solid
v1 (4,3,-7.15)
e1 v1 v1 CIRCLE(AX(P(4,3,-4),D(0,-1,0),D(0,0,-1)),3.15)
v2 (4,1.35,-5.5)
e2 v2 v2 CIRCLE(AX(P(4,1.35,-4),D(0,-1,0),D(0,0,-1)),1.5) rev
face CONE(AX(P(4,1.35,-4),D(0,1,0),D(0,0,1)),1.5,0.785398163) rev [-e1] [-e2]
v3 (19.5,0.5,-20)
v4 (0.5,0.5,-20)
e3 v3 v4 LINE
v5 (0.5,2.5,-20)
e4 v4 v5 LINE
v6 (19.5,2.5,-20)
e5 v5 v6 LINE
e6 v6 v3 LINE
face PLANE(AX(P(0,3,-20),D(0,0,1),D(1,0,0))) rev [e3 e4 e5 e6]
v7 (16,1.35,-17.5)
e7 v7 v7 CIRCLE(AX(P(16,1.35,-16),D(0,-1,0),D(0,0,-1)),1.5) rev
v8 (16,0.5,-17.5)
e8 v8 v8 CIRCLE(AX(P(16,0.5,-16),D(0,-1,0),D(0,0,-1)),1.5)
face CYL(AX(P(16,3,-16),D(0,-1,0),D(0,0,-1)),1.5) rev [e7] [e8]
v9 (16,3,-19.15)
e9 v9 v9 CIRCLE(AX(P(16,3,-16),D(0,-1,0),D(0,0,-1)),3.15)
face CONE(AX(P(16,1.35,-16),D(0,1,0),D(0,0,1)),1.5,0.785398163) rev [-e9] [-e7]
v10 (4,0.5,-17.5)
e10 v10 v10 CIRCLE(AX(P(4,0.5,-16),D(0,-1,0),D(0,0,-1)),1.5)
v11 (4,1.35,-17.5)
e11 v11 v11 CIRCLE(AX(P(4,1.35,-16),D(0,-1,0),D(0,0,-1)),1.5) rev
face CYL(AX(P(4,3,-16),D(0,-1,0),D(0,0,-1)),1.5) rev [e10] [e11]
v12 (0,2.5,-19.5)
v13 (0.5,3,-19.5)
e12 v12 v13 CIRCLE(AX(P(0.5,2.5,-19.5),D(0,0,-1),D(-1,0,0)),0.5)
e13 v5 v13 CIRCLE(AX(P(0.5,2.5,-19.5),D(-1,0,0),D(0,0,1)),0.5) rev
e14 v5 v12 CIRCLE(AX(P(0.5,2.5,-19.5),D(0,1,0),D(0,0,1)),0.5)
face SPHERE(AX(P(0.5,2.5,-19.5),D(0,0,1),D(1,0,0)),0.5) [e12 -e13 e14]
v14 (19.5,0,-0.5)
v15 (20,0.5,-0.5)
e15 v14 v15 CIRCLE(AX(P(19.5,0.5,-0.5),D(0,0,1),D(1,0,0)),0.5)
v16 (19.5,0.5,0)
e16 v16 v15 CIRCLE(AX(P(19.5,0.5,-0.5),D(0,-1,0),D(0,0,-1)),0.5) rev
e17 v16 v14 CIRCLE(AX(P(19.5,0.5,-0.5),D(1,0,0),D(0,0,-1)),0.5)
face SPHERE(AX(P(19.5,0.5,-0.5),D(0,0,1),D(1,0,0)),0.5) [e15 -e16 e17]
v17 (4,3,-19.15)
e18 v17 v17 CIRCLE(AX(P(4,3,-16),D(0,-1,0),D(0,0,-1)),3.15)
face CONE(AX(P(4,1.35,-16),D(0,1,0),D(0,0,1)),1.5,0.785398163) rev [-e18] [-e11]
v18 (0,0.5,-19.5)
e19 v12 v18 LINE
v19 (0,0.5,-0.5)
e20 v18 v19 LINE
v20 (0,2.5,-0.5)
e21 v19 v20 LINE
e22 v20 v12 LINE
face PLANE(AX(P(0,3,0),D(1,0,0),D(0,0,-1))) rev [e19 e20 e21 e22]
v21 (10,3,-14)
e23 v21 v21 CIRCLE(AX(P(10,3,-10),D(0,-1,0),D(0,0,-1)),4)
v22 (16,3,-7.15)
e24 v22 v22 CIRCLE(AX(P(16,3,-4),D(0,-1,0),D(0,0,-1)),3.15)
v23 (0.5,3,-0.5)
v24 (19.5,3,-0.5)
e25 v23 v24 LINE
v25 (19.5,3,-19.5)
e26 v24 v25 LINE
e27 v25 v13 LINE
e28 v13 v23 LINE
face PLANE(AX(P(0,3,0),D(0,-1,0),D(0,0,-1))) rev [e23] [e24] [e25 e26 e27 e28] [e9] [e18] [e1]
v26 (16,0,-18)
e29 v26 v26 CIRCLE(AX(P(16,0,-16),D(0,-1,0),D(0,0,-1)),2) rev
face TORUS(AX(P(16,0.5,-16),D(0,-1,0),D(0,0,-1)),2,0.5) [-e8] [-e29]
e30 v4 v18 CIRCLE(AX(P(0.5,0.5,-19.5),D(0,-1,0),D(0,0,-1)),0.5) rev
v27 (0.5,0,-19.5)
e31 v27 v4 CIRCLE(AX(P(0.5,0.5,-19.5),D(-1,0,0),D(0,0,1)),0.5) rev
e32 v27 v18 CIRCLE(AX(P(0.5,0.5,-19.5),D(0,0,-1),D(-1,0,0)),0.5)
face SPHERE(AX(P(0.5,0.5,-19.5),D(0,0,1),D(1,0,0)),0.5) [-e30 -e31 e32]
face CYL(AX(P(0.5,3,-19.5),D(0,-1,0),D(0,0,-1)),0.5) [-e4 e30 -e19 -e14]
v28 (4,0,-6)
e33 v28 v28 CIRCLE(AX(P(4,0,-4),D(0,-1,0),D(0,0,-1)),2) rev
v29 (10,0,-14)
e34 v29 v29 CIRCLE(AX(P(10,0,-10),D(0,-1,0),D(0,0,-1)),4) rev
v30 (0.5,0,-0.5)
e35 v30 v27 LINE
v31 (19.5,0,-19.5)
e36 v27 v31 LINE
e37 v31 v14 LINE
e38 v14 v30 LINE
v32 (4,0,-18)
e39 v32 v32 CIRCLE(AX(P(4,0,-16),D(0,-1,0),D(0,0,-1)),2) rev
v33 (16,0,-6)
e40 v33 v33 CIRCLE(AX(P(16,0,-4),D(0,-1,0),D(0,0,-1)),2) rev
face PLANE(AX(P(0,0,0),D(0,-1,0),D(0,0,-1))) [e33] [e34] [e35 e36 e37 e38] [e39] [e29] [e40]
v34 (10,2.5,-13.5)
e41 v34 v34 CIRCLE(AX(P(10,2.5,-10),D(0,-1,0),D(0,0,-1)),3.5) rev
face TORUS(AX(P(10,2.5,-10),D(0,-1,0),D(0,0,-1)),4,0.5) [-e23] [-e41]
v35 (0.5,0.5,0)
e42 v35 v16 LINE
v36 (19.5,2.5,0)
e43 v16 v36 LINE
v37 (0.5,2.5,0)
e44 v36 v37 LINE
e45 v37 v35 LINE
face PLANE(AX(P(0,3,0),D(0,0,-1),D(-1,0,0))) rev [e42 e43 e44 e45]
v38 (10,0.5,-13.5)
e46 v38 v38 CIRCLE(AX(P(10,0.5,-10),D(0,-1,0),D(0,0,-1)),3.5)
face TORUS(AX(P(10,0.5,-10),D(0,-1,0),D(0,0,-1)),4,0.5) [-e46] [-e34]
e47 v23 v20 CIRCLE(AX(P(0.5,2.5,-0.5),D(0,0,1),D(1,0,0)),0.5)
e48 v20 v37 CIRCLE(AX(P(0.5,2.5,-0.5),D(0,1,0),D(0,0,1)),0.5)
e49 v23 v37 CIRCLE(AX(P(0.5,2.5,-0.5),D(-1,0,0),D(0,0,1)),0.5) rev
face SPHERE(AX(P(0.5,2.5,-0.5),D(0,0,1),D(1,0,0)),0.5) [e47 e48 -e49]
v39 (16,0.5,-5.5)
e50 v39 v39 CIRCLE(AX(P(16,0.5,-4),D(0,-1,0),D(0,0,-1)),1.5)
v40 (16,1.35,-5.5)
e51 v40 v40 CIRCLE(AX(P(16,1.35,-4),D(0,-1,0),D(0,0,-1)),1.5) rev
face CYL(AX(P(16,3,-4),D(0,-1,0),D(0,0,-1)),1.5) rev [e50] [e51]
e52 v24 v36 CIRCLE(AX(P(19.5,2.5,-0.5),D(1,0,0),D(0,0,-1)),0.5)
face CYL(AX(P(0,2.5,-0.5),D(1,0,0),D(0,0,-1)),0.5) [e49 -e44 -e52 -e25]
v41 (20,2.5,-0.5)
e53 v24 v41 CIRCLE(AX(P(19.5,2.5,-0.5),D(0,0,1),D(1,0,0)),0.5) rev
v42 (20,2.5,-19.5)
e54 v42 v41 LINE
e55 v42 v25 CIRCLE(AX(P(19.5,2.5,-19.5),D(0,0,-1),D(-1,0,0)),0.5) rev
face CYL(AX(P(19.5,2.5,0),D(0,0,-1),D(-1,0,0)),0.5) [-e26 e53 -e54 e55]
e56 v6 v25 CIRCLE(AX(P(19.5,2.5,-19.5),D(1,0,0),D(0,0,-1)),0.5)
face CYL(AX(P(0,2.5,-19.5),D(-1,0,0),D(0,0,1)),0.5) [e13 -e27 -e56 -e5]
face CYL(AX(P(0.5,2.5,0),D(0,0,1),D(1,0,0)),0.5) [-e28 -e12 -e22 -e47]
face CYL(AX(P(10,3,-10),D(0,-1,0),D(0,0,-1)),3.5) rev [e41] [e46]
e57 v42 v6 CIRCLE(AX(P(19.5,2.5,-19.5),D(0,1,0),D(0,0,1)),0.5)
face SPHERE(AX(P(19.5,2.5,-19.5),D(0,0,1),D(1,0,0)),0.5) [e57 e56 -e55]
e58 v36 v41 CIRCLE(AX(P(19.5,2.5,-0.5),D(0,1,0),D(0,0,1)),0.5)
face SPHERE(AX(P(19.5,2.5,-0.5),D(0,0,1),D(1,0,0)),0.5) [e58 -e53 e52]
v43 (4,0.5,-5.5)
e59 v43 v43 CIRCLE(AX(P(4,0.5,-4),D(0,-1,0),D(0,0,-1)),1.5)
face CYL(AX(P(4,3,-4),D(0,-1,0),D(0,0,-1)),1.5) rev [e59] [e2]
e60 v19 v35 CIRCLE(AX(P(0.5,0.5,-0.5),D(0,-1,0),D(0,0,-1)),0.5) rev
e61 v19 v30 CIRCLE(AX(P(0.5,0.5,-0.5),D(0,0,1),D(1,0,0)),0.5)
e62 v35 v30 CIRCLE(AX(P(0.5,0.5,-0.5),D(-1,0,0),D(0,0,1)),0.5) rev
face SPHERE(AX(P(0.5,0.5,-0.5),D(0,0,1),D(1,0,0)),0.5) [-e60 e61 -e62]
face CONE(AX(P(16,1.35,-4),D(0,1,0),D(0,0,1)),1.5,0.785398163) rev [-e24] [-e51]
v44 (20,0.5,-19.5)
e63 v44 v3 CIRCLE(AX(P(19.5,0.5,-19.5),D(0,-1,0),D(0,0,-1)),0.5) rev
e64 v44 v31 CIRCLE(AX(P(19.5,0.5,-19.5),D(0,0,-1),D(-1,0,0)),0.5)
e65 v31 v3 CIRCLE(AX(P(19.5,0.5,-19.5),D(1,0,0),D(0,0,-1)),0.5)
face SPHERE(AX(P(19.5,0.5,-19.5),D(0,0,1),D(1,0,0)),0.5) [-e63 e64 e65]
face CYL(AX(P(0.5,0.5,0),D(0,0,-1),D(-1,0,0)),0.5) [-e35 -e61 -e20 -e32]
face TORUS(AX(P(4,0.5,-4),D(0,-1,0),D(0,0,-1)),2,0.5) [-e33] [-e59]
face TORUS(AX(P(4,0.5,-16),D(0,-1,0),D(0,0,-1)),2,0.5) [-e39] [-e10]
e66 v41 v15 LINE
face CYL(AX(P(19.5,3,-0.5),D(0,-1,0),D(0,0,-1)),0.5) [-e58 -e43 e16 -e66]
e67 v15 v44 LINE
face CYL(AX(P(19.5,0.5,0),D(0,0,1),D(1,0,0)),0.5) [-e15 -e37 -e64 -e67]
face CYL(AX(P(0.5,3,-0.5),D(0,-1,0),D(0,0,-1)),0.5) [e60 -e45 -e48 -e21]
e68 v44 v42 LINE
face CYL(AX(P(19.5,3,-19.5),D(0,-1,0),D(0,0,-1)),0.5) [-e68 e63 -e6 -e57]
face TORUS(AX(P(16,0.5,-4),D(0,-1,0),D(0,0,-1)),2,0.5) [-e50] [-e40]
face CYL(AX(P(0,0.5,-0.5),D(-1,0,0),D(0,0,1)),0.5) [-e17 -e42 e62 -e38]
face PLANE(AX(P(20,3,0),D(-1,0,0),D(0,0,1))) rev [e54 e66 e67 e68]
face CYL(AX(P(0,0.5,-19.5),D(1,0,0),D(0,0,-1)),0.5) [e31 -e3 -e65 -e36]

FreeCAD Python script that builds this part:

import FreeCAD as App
import Part
import Sketcher
Q = App.Units.Quantity


def edges_at(feature, points):
    """Names of the edges that pass closest to the given points."""
    edges = feature.Shape.Edges
    near = lambda p: min(range(len(edges)), key=lambda i: edges[i].distToShape(Part.Vertex(*p))[0])
    return sorted({f"Edge{near(p) + 1}" for p in points})


def add_polygon(sketch, points):
    """Adds a closed chain of lines whose ends are joined by coincident constraints."""
    first, n = sketch.GeometryCount, len(points)
    for a, b in zip(points, points[1:] + points[:1]):
        sketch.addGeometry(Part.LineSegment(App.Vector(*a, 0), App.Vector(*b, 0)), False)
    for i in range(n):
        sketch.addConstraint(Sketcher.Constraint("Coincident", first + i, 2, first + (i + 1) % n, 1))

doc = App.newDocument("Part")
body = doc.addObject("PartDesign::Body", "Body")

sketch1 = doc.addObject("Sketcher::SketchObject", "Sketch")
body.addObject(sketch1)
sketch1.AttachmentSupport = (doc.XZ_Plane, [""])
sketch1.MapMode = "FlatFace"
add_polygon(sketch1, [(0, -20), (0, 0), (20, 0), (20, -20)])
sketch1.addGeometry(Part.Circle(App.Vector(4, -4, 0), App.Vector(0, 0, 1), 1.5), False)
sketch1.addGeometry(Part.Circle(App.Vector(16, -4, 0), App.Vector(0, 0, 1), 1.5), False)
sketch1.addGeometry(Part.Circle(App.Vector(4, -16, 0), App.Vector(0, 0, 1), 1.5), False)
sketch1.addGeometry(Part.Circle(App.Vector(10, -10, 0), App.Vector(0, 0, 1), 3.5), False)
sketch1.addGeometry(Part.Circle(App.Vector(16, -16, 0), App.Vector(0, 0, 1), 1.5), False)
sketch1.addConstraint([
    Sketcher.Constraint("Vertical", 0),
    Sketcher.Constraint("Horizontal", 1),
    Sketcher.Constraint("Vertical", 2),
    Sketcher.Constraint("Horizontal", 3),
    Sketcher.Constraint("Coincident", 0, 2, -1, 1),
    Sketcher.Constraint("Equal", 4, 5),
    Sketcher.Constraint("Equal", 5, 6),
    Sketcher.Constraint("Equal", 6, 8),
    Sketcher.Constraint("Horizontal", 4, 3, 5, 3),
    Sketcher.Constraint("Horizontal", 6, 3, 8, 3),
    Sketcher.Constraint("Vertical", 4, 3, 6, 3),
    Sketcher.Constraint("Vertical", 5, 3, 8, 3),
    Sketcher.Constraint("Equal", 3, 0),
    Sketcher.Constraint("Diameter", 4, Q("3 mm")),
    Sketcher.Constraint("Diameter", 7, Q("7 mm")),
    Sketcher.Constraint("DistanceX", 1, 1, 1, 2, Q("20 mm")),
    Sketcher.Constraint("DistanceX", -1, 1, 4, 3, Q("4 mm")),
    Sketcher.Constraint("DistanceY", 4, 3, -1, 1, Q("4 mm")),
    Sketcher.Constraint("DistanceX", -1, 1, 5, 3, Q("16 mm")),
    Sketcher.Constraint("DistanceY", 6, 3, -1, 1, Q("16 mm")),
    Sketcher.Constraint("DistanceX", -1, 1, 7, 3, Q("10 mm")),
    Sketcher.Constraint("DistanceY", 7, 3, -1, 1, Q("10 mm")),
])
pad1 = doc.addObject("PartDesign::Pad", "Pad")
body.addObject(pad1)
pad1.Profile = sketch1
pad1.Length = 3
pad1.Reversed = True
doc.recompute()

chamfer = doc.addObject("PartDesign::Chamfer", "Chamfer")
body.addObject(chamfer)
chamfer.Base = (pad1, edges_at(pad1, [
    (16, 3, -17.5),
    (4, 3, -14.5),
    (16, 3, -2.5),
    (4, 3, -5.5),
]))
chamfer.Size = 1.65
doc.recompute()

fillet = doc.addObject("PartDesign::Fillet", "Fillet")
body.addObject(fillet)
fillet.Base = (chamfer, edges_at(chamfer, [
    (16, 0, -17.5),
    (20, 3, -10),
    (4, 0, -14.5),
    (10, 3, -20),
    (16, 0, -2.5),
    (4, 0, -5.5),
    (10, 0, -13.5),
    (10, 3, -13.5),
    (0, 3, -10),
    (10, 0, -20),
    (20, 0, -10),
    (10, 0, 0),
    (0, 0, -10),
    (0, 1.5, -20),
    (20, 1.5, -20),
    (20, 1.5, 0),
    (0, 1.5, 0),
    (10, 3, 0),
]))
fillet.Radius = 0.5

doc.recompute()
